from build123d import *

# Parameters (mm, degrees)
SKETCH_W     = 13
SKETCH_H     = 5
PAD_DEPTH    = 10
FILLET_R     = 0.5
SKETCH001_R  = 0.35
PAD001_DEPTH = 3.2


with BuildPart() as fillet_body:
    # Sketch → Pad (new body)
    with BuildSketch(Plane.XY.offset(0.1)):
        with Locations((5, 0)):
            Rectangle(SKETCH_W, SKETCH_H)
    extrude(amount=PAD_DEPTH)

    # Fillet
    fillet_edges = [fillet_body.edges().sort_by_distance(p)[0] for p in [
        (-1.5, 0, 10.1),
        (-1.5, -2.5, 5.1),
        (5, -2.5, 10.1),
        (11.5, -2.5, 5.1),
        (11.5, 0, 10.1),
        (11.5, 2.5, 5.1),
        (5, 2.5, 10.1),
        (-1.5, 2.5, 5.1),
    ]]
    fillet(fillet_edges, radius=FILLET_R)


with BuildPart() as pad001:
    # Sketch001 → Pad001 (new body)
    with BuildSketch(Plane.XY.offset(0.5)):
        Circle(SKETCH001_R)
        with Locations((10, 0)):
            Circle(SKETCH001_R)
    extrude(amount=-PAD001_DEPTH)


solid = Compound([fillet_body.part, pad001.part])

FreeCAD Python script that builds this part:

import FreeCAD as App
import Part
import Sketcher
Q = App.Units.Quantity


def edges_at(feature, points):
    """Names of the edges that pass closest to the given points."""
    edges = feature.Shape.Edges
    near = lambda p: min(range(len(edges)), key=lambda i: edges[i].distToShape(Part.Vertex(*p))[0])
    return sorted({f"Edge{near(p) + 1}" for p in points})


def add_polygon(sketch, points):
    """Adds a closed chain of lines whose ends are joined by coincident constraints."""
    first, n = sketch.GeometryCount, len(points)
    for a, b in zip(points, points[1:] + points[:1]):
        sketch.addGeometry(Part.LineSegment(App.Vector(*a, 0), App.Vector(*b, 0)), False)
    for i in range(n):
        sketch.addConstraint(Sketcher.Constraint("Coincident", first + i, 2, first + (i + 1) % n, 1))

doc = App.newDocument("Part")
body = doc.addObject("PartDesign::Body", "Body")

sketch1 = body.newObject("Sketcher::SketchObject", "Sketch")
sketch1.AttachmentSupport = (doc.getObject("XY_Plane"), [""])
sketch1.MapMode = "FlatFace"
sketch1.AttachmentOffset = App.Placement(App.Vector(0, 0, 0.1), App.Rotation())
add_polygon(sketch1, [(-2, 2), (-2, -2), (12, -2), (12, 2)])
sketch1.addConstraint([
    Sketcher.Constraint("Vertical", 0),
    Sketcher.Constraint("Horizontal", 1),
    Sketcher.Constraint("Vertical", 2),
    Sketcher.Constraint("Horizontal", 3),
    Sketcher.Constraint("DistanceX", 1, 1, 1, 2, Q("13 mm")),
    Sketcher.Constraint("DistanceY", 0, 2, 0, 1, Q("5 mm")),
    Sketcher.Constraint("DistanceX", 0, 2, -1, 1, Q("1.5 mm")),
    Sketcher.Constraint("DistanceY", 0, 2, -1, 1, Q("2.5 mm")),
])
pad1 = body.newObject("PartDesign::Pad", "Pad")
pad1.Profile = sketch1
pad1.Length = 10
doc.recompute()

fillet = body.newObject("PartDesign::Fillet", "Fillet")
fillet.Base = (pad1, edges_at(pad1, [
    (-1.5, 0, 10.1),
    (-1.5, -2.5, 5.1),
    (5, -2.5, 10.1),
    (11.5, -2.5, 5.1),
    (11.5, 0, 10.1),
    (11.5, 2.5, 5.1),
    (5, 2.5, 10.1),
    (-1.5, 2.5, 5.1),
]))
fillet.Radius = 0.5
body2 = doc.addObject("PartDesign::Body", "Body001")
body2.AllowCompound = True

sketch2 = body2.newObject("Sketcher::SketchObject", "Sketch001")
sketch2.AttachmentSupport = (doc.getObject("XY_Plane001"), [""])
sketch2.MapMode = "FlatFace"
sketch2.AttachmentOffset = App.Placement(App.Vector(0, 0, 0.5), App.Rotation())
sketch2.addGeometry([
    Part.Circle(App.Vector(0, 0, 0), App.Vector(0, 0, 1), 0.35),
    Part.Circle(App.Vector(10, 0, 0), App.Vector(0, 0, 1), 0.35),
], False)
sketch2.addConstraint([
    Sketcher.Constraint("Coincident", 0, 3, -1, 1),
    Sketcher.Constraint("Equal", 0, 1),
    Sketcher.Constraint("PointOnObject", 1, 3, -1),
    Sketcher.Constraint("Diameter", 0, Q("0.7 mm")),
    Sketcher.Constraint("DistanceX", -1, 1, 1, 3, Q("10 mm")),
])
pad2 = body2.newObject("PartDesign::Pad", "Pad001")
pad2.Profile = sketch2
pad2.Length = 3.2
pad2.Reversed = True

doc.recompute()
